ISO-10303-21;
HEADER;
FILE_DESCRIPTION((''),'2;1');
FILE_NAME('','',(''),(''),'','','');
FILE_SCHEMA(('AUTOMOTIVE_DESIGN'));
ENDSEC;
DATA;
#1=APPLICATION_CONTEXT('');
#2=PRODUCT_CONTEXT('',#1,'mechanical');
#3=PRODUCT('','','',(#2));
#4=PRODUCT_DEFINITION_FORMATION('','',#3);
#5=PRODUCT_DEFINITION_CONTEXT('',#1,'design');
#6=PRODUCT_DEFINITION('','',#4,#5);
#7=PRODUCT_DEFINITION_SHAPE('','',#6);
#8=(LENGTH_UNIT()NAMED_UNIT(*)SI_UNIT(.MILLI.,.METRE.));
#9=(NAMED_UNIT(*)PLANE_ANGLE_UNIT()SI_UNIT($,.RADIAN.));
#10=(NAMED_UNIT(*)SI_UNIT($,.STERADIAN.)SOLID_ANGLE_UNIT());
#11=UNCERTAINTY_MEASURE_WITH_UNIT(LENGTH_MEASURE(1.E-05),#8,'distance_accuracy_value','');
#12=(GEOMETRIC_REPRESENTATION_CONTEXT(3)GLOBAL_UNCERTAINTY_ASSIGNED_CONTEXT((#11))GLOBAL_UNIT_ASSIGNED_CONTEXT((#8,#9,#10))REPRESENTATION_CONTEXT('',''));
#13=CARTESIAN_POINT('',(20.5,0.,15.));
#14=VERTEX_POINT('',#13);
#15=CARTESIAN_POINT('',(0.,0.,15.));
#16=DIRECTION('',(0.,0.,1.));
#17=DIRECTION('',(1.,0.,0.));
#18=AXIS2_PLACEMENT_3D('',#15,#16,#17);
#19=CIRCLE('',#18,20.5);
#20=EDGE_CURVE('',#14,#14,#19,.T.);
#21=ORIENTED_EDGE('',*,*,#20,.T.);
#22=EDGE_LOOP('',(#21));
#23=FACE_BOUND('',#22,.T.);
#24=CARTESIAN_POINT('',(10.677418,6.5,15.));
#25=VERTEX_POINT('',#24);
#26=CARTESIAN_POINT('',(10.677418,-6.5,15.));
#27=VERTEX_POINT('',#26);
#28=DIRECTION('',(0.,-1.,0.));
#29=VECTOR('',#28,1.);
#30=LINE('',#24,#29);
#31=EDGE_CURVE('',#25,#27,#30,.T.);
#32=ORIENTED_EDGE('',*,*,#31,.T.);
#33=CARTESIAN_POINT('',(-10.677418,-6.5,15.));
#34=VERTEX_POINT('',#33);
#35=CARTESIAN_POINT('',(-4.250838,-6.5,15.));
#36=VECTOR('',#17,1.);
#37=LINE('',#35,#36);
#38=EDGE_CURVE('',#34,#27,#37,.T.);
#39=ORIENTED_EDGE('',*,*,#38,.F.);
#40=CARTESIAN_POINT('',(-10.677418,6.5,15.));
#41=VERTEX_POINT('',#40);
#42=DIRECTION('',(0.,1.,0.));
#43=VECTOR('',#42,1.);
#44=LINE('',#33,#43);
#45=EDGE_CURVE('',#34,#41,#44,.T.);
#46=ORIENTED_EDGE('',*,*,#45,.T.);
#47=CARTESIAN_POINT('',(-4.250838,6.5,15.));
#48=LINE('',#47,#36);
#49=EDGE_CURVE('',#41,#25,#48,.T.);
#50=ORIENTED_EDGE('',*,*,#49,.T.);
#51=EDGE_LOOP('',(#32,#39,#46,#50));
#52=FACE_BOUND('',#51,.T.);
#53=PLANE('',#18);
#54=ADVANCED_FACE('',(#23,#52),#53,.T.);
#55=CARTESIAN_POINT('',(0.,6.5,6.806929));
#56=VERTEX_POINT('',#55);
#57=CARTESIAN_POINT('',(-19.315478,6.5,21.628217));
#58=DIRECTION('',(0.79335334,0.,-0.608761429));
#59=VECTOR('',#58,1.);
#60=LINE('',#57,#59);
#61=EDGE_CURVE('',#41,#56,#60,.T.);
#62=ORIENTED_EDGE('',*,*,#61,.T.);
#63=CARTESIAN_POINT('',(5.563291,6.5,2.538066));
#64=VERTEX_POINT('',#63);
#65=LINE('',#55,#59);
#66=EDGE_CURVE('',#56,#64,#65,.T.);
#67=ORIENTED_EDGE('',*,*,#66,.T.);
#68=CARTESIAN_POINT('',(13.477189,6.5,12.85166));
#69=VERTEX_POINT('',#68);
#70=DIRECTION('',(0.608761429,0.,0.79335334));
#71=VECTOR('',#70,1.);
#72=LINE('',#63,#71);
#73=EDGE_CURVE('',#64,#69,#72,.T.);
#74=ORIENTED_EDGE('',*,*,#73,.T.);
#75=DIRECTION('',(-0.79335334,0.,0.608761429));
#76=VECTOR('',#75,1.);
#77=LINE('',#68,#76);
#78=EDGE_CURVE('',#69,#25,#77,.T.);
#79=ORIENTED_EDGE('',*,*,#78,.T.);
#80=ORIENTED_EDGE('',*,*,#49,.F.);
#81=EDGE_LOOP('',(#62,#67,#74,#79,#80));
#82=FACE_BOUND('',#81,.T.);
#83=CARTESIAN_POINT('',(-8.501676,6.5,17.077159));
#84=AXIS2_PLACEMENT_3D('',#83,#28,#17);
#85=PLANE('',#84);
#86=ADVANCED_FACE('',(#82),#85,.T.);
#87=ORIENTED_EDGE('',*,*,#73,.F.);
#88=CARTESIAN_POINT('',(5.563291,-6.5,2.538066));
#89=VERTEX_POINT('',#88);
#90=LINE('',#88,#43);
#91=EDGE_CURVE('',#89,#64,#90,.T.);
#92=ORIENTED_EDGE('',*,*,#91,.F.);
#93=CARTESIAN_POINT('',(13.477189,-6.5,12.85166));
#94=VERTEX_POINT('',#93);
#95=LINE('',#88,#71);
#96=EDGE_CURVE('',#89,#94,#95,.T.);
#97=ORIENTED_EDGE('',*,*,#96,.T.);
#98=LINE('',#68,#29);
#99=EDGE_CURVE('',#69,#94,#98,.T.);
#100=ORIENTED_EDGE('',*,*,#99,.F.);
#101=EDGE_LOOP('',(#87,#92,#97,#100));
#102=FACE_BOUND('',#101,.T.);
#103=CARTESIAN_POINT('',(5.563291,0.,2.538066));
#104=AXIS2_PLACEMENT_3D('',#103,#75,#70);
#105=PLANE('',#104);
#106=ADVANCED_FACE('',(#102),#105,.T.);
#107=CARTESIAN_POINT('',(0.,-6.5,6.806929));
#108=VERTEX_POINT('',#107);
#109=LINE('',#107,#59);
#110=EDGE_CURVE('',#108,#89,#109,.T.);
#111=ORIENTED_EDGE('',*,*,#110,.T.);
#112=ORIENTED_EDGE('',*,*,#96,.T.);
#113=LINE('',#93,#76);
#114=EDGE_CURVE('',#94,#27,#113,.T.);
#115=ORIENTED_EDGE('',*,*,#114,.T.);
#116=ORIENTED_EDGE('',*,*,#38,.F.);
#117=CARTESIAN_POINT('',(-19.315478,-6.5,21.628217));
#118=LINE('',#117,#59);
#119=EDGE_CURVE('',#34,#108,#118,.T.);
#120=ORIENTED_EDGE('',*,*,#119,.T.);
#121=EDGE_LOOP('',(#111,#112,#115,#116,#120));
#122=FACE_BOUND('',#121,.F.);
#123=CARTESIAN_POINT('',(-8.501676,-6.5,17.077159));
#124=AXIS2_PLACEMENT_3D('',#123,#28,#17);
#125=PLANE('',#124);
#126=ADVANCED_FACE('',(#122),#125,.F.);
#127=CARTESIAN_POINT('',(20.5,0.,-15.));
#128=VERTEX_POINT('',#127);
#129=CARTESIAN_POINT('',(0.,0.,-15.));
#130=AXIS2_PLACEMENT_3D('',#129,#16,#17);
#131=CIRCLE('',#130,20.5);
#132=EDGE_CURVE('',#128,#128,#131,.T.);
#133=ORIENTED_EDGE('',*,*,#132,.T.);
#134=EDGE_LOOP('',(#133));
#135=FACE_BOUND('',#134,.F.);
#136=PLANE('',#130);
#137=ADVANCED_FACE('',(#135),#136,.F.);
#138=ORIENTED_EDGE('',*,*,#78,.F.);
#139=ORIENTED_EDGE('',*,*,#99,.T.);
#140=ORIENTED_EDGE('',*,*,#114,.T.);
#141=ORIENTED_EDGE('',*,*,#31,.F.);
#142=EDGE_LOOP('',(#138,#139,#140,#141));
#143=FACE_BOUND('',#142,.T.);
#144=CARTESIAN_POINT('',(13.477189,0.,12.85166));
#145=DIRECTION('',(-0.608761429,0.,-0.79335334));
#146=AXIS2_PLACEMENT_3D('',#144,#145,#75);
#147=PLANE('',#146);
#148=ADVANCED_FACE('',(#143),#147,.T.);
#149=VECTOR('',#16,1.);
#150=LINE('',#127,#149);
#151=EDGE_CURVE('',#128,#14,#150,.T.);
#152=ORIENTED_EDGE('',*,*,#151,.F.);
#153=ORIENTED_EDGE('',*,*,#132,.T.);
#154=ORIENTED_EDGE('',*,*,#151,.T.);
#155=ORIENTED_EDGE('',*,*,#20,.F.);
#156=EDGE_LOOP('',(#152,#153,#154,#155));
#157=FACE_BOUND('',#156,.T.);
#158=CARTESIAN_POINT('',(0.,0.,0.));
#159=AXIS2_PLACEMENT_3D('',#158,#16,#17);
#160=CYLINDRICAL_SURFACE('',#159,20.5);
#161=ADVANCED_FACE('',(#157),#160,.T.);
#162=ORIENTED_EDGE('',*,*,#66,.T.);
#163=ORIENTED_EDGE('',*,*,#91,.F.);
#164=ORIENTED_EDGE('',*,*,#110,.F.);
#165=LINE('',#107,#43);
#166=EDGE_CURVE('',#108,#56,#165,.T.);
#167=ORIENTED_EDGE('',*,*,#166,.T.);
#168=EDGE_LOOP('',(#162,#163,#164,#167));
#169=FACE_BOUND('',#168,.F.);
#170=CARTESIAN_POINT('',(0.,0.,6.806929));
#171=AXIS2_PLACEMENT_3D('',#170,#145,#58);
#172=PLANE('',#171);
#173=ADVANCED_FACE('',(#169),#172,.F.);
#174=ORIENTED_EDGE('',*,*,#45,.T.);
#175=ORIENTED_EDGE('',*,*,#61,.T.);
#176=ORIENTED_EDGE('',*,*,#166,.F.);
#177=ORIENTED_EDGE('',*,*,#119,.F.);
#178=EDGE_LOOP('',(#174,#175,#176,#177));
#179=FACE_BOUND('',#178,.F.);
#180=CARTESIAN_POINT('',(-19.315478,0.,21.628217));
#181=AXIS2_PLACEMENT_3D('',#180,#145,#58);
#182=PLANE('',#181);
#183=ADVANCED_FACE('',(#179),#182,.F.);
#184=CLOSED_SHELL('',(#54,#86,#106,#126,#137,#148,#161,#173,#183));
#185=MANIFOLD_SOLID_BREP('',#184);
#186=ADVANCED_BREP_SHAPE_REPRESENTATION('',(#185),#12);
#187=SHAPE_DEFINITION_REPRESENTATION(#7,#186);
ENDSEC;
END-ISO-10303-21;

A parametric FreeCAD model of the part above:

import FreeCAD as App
import Part
import Sketcher
Q = App.Units.Quantity


def add_polygon(sketch, points):
    """Adds a closed chain of lines whose ends are joined by coincident constraints."""
    first, n = sketch.GeometryCount, len(points)
    for a, b in zip(points, points[1:] + points[:1]):
        sketch.addGeometry(Part.LineSegment(App.Vector(*a, 0), App.Vector(*b, 0)), False)
    for i in range(n):
        sketch.addConstraint(Sketcher.Constraint("Coincident", first + i, 2, first + (i + 1) % n, 1))

doc = App.newDocument("Part")
body = doc.addObject("PartDesign::Body", "Body")

sketch1 = body.newObject("Sketcher::SketchObject", "Sketch")
sketch1.AttachmentSupport = (doc.getObject("XY_Plane"), [""])
sketch1.MapMode = "FlatFace"
sketch1.addGeometry(Part.Circle(App.Vector(0, 0, 0), App.Vector(0, 0, 1), 20.5), False)
sketch1.addConstraint(Sketcher.Constraint("Coincident", 0, 3, -1, 1))
sketch1.addConstraint(Sketcher.Constraint("Diameter", 0, Q("41 mm")))
pad1 = body.newObject("PartDesign::Pad", "Pad")
pad1.Profile = sketch1
pad1.Type = "TwoLengths"
pad1.Length = 15
pad1.Length2 = 15

sketch2 = body.newObject("Sketcher::SketchObject", "Sketch001")
sketch2.AttachmentSupport = (doc.getObject("XZ_Plane"), [""])
sketch2.MapMode = "FlatFace"
add_polygon(sketch2, [(-19.315478, 21.628217), (0, 6.806929), (5.563291, 2.538066), (13.477189, 12.85166), (-11.40158, 31.941811), (-15.358529, 26.785014)])
sketch2.addConstraint(Sketcher.Constraint("PointOnObject", 0, 2, -2))
sketch2.addConstraint(Sketcher.Constraint("Parallel", 0, 1))
sketch2.addConstraint(Sketcher.Constraint("Perpendicular", 1, 2))
sketch2.addConstraint(Sketcher.Constraint("Perpendicular", 2, 3))
sketch2.addConstraint(Sketcher.Constraint("Perpendicular", 3, 4))
sketch2.addConstraint(Sketcher.Constraint("Parallel", 4, 5))
sketch2.addConstraint(Sketcher.Constraint("Equal", 4, 5))
sketch2.addConstraint(Sketcher.Constraint("Distance", 2, Q("13 mm")))
sketch2.addConstraint(Sketcher.Constraint("Angle", 0, Q("-37.5 deg")))
sketch2.addConstraint(Sketcher.Constraint("DistanceY", -1, 1, 0, 2, Q("6.806929 mm")))
sketch2.addConstraint(Sketcher.Constraint("DistanceX", -1, 1, 1, 2, Q("5.563291 mm")))
sketch2.addConstraint(Sketcher.Constraint("DistanceX", 3, 2, -1, 1, Q("11.40158 mm")))
pocket1 = body.newObject("PartDesign::Pocket", "Pocket")
pocket1.Profile = sketch2
pocket1.Type = "TwoLengths"
pocket1.Length = 6.5
pocket1.Length2 = 6.5

doc.recompute()
